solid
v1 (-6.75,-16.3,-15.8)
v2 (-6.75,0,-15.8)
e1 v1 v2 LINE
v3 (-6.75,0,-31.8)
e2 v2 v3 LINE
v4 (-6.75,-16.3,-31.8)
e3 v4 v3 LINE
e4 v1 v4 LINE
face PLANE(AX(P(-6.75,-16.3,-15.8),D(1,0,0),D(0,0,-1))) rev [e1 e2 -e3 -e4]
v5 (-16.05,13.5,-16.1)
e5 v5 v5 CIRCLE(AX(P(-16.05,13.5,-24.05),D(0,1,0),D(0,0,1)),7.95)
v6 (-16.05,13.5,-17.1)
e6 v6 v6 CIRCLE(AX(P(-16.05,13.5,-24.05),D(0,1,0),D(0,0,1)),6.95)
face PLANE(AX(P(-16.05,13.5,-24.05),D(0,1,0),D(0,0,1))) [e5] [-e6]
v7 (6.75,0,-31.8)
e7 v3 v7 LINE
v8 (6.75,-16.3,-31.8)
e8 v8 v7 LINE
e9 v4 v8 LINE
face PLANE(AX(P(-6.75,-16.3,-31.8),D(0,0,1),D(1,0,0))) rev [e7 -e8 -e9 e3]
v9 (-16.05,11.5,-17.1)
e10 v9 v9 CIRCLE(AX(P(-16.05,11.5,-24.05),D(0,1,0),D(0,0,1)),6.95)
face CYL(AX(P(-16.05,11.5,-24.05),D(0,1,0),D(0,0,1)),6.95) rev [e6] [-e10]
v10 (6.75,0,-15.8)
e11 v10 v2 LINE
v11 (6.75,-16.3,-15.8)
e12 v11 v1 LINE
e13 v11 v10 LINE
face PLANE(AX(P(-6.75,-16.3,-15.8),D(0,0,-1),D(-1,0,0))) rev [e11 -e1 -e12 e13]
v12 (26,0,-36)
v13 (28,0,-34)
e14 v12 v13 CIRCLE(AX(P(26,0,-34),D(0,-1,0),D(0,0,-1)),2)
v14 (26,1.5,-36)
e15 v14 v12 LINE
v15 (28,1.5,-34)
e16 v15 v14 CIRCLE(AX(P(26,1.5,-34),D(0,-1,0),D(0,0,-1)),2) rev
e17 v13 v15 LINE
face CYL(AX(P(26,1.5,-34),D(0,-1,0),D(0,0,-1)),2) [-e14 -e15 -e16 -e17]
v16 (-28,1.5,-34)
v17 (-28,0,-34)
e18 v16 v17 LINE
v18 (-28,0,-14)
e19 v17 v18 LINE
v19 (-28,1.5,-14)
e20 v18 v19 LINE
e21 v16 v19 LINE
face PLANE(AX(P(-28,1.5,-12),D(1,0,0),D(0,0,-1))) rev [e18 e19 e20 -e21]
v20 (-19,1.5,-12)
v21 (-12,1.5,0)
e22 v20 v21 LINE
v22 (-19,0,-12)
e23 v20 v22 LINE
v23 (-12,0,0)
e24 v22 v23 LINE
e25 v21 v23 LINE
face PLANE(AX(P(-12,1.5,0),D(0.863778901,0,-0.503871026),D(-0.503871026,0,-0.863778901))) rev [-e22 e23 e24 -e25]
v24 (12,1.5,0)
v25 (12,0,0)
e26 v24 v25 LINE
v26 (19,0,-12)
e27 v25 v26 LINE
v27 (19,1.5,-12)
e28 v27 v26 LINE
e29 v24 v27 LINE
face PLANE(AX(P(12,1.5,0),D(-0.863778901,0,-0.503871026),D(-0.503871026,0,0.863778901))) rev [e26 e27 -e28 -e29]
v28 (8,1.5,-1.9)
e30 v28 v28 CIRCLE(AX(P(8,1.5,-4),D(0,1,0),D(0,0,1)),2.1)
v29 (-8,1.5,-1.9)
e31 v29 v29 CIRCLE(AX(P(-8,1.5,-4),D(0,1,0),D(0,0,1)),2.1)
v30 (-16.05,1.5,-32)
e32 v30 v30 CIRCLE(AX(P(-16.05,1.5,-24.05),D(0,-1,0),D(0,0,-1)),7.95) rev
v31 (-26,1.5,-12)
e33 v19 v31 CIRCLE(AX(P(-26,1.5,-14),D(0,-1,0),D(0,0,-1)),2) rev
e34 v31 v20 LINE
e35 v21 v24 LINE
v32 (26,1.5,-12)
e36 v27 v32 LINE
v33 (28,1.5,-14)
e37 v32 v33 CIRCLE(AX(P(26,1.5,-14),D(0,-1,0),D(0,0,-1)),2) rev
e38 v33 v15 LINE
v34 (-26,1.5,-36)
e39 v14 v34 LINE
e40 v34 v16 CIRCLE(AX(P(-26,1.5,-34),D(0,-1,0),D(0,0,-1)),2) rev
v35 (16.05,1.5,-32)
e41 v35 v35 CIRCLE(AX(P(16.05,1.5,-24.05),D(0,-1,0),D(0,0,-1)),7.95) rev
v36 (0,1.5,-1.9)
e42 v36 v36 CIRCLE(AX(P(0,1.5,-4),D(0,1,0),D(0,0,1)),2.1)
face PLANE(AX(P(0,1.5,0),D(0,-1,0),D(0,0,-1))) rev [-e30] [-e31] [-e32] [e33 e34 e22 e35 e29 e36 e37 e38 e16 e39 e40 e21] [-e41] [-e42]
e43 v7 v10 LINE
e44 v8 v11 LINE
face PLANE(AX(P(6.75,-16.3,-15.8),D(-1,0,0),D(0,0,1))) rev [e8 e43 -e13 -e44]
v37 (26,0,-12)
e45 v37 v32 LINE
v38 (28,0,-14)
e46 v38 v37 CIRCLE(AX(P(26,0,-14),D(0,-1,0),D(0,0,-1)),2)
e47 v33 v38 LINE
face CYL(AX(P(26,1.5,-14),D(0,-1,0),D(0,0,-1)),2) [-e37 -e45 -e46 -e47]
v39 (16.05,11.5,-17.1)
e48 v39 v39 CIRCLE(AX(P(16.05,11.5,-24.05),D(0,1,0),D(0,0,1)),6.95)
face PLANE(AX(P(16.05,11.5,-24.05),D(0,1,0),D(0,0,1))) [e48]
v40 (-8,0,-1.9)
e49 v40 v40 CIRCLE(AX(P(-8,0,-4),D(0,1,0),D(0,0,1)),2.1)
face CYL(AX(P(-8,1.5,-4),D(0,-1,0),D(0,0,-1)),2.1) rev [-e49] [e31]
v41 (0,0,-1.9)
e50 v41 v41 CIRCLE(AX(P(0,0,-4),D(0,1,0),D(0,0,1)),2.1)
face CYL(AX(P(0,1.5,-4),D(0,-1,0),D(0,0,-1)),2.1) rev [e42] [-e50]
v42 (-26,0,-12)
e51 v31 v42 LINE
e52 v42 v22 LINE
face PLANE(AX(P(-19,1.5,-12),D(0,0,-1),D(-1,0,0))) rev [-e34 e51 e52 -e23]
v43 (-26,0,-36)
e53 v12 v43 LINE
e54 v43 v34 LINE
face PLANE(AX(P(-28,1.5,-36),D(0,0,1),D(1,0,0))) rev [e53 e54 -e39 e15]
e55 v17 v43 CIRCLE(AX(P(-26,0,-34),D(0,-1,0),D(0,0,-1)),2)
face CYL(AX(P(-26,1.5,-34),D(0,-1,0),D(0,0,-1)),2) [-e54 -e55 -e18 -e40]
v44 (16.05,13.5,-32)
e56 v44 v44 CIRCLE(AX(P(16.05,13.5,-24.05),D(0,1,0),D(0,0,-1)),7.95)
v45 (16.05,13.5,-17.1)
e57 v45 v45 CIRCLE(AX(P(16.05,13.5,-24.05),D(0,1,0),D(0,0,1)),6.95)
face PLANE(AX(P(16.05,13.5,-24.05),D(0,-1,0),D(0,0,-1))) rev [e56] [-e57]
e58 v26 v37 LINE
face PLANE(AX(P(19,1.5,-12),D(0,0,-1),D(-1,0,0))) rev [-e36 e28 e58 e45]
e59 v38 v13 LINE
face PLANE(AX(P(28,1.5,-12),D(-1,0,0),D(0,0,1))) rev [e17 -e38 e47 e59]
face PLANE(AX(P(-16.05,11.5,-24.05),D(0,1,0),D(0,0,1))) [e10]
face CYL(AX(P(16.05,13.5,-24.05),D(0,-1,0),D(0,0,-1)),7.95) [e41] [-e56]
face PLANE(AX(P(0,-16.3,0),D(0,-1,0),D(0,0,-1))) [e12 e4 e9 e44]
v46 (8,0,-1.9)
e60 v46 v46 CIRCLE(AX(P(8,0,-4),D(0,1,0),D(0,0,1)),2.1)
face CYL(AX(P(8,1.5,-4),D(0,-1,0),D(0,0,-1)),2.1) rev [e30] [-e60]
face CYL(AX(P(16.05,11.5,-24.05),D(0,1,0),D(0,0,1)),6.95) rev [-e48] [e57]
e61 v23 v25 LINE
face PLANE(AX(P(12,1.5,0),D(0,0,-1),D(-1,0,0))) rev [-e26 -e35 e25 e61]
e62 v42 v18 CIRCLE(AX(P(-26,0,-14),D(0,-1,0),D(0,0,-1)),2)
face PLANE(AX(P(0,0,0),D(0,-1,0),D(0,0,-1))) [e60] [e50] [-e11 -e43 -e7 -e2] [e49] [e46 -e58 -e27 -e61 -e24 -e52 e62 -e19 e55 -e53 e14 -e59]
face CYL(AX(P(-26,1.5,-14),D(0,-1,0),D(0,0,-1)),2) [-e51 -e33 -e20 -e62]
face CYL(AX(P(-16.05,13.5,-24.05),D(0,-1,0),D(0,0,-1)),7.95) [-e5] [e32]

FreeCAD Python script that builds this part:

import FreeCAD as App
import Part
import Sketcher


def edges_at(feature, points):
    """Names of the edges that pass closest to the given points."""
    edges = feature.Shape.Edges
    near = lambda p: min(range(len(edges)), key=lambda i: edges[i].distToShape(Part.Vertex(*p))[0])
    return sorted({f"Edge{near(p) + 1}" for p in points})


def add_polygon(sketch, points):
    """Adds a closed chain of lines whose ends are joined by coincident constraints."""
    first, n = sketch.GeometryCount, len(points)
    for a, b in zip(points, points[1:] + points[:1]):
        sketch.addGeometry(Part.LineSegment(App.Vector(*a, 0), App.Vector(*b, 0)), False)
    for i in range(n):
        sketch.addConstraint(Sketcher.Constraint("Coincident", first + i, 2, first + (i + 1) % n, 1))

doc = App.newDocument("Part")
body = doc.addObject("PartDesign::Body", "Body")

# Sketch on XZ plane
sketch1 = body.newObject("Sketcher::SketchObject", "Sketch")
sketch1.AttachmentSupport = (doc.getObject("XZ_Plane"), [""])
sketch1.MapMode = "FlatFace"
add_polygon(sketch1, [(-12, 0), (12, 0), (19, -12), (28, -12), (28, -36), (-28, -36), (-28, -12), (-19, -12)])  # lines 0-7
sketch1.addGeometry(Part.Circle(App.Vector(8, -4, 0), App.Vector(0, 0, 1), 2.1), False)  # 8
sketch1.addGeometry(Part.Circle(App.Vector(0, -4, 0), App.Vector(0, 0, 1), 2.1), False)  # 9
sketch1.addGeometry(Part.Circle(App.Vector(-8, -4, 0), App.Vector(0, 0, 1), 2.1), False)  # 10
sketch1.addConstraint([
    Sketcher.Constraint("Horizontal", 0),
    Sketcher.Constraint("Horizontal", 2),
    Sketcher.Constraint("Vertical", 3),
    Sketcher.Constraint("Horizontal", 4),
    Sketcher.Constraint("Vertical", 5),
    Sketcher.Constraint("Horizontal", 6),
    Sketcher.Constraint("Equal", 8, 9),
    Sketcher.Constraint("Equal", 9, 10),
    Sketcher.Constraint("Symmetric", 0, 2, 7, 2, -1, 1),
    Sketcher.Constraint("Symmetric", 8, 3, 10, 3, -2),
    Sketcher.Constraint("Symmetric", 2, 2, 5, 2, -2),
    Sketcher.Constraint("PointOnObject", 9, 3, -2),
    Sketcher.Constraint("Horizontal", 8, 3, 9, 3),
    Sketcher.Constraint("Equal", 2, 6),
    Sketcher.Constraint("Equal", 0, 3),
    Sketcher.Constraint("Diameter", 8, 4.2),
    Sketcher.Constraint("DistanceX", 0, 1, 0, 2, 24.0),
    Sketcher.Constraint("DistanceX", 2, 1, 2, 2, 9.0),
    Sketcher.Constraint("DistanceX", 4, 2, 4, 1, 56.0),
    Sketcher.Constraint("DistanceX", -1, 1, 8, 3, 8.0),
    Sketcher.Constraint("DistanceY", 8, 3, -1, 1, 4.0),
    Sketcher.Constraint("DistanceY", 1, 2, -1, 1, 12.0),
])
pad1 = body.newObject("PartDesign::Pad", "Pad")
pad1.Profile = sketch1
pad1.Length = 1.5
pad1.Reversed = True
doc.recompute()

fillet = body.newObject("PartDesign::Fillet", "Fillet")
fillet.Base = (pad1, edges_at(pad1, [
    (-28, 0.75, -12),
    (-28, 0.75, -36),
    (28, 0.75, -36),
    (28, 0.75, -12),
]))
fillet.Radius = 2

# Sketch on XZ plane
sketch2 = body.newObject("Sketcher::SketchObject", "Sketch001")
sketch2.AttachmentSupport = (doc.getObject("XZ_Plane"), [""])
sketch2.MapMode = "FlatFace"
sketch2.AttachmentOffset = App.Placement(App.Vector(0, 0, -1.5), App.Rotation())
sketch2.addGeometry([
    Part.Circle(App.Vector(-16, -24, 0), App.Vector(0, 0, 1), 8),
    Part.Circle(App.Vector(16, -24, 0), App.Vector(0, 0, 1), 8),
], False)
sketch2.addConstraint([
    Sketcher.Constraint("Equal", 0, 1),
    Sketcher.Constraint("Symmetric", 0, 3, 1, 3, -2),
    Sketcher.Constraint("Diameter", 0, 15.9),
    Sketcher.Constraint("DistanceX", 0, 3, 1, 3, 32.1),
    Sketcher.Constraint("DistanceY", 0, 3, -1, 1, 24.05),
])
pad2 = body.newObject("PartDesign::Pad", "Pad001")
pad2.Profile = sketch2
pad2.Length = 12
pad2.Reversed = True

# Sketch on XZ plane
sketch3 = body.newObject("Sketcher::SketchObject", "Sketch002")
sketch3.AttachmentSupport = (doc.getObject("XZ_Plane"), [""])
sketch3.MapMode = "FlatFace"
add_polygon(sketch3, [(-7, -16), (-7, -32), (7, -32), (7, -16)])  # lines 0-3
sketch3.addConstraint([
    Sketcher.Constraint("Vertical", 0),
    Sketcher.Constraint("Horizontal", 1),
    Sketcher.Constraint("Vertical", 2),
    Sketcher.Constraint("Horizontal", 3),
    Sketcher.Constraint("DistanceY", 0, 2, 0, 1, 16.0),
    Sketcher.Constraint("DistanceX", 1, 1, 1, 2, 13.5),
    Sketcher.Constraint("DistanceY", 0, 2, -1, 1, 31.8),
    Sketcher.Constraint("DistanceX", 0, 2, -1, 1, 6.75),
])
pad3 = body.newObject("PartDesign::Pad", "Pad002")
pad3.Profile = sketch3
pad3.Length = 16.3

# Sketch on XZ plane
sketch4 = body.newObject("Sketcher::SketchObject", "Sketch003")
sketch4.AttachmentSupport = (doc.getObject("XZ_Plane"), [""])
sketch4.MapMode = "FlatFace"
sketch4.AttachmentOffset = App.Placement(App.Vector(0, 0, -13.5), App.Rotation())
sketch4.addGeometry([
    Part.Circle(App.Vector(-16, -24, 0), App.Vector(0, 0, 1), 7),
    Part.Circle(App.Vector(16, -24, 0), App.Vector(0, 0, 1), 7),
], False)
sketch4.addConstraint([
    Sketcher.Constraint("Equal", 0, 1),
    Sketcher.Constraint("Symmetric", 0, 3, 1, 3, -2),
    Sketcher.Constraint("Diameter", 0, 13.9),
    Sketcher.Constraint("DistanceX", 0, 3, 1, 3, 32.1),
    Sketcher.Constraint("DistanceY", 0, 3, -1, 1, 24.05),
])
pocket1 = body.newObject("PartDesign::Pocket", "Pocket")
pocket1.Profile = sketch4
pocket1.Length = 2
pocket1.Reversed = True

doc.recompute()
